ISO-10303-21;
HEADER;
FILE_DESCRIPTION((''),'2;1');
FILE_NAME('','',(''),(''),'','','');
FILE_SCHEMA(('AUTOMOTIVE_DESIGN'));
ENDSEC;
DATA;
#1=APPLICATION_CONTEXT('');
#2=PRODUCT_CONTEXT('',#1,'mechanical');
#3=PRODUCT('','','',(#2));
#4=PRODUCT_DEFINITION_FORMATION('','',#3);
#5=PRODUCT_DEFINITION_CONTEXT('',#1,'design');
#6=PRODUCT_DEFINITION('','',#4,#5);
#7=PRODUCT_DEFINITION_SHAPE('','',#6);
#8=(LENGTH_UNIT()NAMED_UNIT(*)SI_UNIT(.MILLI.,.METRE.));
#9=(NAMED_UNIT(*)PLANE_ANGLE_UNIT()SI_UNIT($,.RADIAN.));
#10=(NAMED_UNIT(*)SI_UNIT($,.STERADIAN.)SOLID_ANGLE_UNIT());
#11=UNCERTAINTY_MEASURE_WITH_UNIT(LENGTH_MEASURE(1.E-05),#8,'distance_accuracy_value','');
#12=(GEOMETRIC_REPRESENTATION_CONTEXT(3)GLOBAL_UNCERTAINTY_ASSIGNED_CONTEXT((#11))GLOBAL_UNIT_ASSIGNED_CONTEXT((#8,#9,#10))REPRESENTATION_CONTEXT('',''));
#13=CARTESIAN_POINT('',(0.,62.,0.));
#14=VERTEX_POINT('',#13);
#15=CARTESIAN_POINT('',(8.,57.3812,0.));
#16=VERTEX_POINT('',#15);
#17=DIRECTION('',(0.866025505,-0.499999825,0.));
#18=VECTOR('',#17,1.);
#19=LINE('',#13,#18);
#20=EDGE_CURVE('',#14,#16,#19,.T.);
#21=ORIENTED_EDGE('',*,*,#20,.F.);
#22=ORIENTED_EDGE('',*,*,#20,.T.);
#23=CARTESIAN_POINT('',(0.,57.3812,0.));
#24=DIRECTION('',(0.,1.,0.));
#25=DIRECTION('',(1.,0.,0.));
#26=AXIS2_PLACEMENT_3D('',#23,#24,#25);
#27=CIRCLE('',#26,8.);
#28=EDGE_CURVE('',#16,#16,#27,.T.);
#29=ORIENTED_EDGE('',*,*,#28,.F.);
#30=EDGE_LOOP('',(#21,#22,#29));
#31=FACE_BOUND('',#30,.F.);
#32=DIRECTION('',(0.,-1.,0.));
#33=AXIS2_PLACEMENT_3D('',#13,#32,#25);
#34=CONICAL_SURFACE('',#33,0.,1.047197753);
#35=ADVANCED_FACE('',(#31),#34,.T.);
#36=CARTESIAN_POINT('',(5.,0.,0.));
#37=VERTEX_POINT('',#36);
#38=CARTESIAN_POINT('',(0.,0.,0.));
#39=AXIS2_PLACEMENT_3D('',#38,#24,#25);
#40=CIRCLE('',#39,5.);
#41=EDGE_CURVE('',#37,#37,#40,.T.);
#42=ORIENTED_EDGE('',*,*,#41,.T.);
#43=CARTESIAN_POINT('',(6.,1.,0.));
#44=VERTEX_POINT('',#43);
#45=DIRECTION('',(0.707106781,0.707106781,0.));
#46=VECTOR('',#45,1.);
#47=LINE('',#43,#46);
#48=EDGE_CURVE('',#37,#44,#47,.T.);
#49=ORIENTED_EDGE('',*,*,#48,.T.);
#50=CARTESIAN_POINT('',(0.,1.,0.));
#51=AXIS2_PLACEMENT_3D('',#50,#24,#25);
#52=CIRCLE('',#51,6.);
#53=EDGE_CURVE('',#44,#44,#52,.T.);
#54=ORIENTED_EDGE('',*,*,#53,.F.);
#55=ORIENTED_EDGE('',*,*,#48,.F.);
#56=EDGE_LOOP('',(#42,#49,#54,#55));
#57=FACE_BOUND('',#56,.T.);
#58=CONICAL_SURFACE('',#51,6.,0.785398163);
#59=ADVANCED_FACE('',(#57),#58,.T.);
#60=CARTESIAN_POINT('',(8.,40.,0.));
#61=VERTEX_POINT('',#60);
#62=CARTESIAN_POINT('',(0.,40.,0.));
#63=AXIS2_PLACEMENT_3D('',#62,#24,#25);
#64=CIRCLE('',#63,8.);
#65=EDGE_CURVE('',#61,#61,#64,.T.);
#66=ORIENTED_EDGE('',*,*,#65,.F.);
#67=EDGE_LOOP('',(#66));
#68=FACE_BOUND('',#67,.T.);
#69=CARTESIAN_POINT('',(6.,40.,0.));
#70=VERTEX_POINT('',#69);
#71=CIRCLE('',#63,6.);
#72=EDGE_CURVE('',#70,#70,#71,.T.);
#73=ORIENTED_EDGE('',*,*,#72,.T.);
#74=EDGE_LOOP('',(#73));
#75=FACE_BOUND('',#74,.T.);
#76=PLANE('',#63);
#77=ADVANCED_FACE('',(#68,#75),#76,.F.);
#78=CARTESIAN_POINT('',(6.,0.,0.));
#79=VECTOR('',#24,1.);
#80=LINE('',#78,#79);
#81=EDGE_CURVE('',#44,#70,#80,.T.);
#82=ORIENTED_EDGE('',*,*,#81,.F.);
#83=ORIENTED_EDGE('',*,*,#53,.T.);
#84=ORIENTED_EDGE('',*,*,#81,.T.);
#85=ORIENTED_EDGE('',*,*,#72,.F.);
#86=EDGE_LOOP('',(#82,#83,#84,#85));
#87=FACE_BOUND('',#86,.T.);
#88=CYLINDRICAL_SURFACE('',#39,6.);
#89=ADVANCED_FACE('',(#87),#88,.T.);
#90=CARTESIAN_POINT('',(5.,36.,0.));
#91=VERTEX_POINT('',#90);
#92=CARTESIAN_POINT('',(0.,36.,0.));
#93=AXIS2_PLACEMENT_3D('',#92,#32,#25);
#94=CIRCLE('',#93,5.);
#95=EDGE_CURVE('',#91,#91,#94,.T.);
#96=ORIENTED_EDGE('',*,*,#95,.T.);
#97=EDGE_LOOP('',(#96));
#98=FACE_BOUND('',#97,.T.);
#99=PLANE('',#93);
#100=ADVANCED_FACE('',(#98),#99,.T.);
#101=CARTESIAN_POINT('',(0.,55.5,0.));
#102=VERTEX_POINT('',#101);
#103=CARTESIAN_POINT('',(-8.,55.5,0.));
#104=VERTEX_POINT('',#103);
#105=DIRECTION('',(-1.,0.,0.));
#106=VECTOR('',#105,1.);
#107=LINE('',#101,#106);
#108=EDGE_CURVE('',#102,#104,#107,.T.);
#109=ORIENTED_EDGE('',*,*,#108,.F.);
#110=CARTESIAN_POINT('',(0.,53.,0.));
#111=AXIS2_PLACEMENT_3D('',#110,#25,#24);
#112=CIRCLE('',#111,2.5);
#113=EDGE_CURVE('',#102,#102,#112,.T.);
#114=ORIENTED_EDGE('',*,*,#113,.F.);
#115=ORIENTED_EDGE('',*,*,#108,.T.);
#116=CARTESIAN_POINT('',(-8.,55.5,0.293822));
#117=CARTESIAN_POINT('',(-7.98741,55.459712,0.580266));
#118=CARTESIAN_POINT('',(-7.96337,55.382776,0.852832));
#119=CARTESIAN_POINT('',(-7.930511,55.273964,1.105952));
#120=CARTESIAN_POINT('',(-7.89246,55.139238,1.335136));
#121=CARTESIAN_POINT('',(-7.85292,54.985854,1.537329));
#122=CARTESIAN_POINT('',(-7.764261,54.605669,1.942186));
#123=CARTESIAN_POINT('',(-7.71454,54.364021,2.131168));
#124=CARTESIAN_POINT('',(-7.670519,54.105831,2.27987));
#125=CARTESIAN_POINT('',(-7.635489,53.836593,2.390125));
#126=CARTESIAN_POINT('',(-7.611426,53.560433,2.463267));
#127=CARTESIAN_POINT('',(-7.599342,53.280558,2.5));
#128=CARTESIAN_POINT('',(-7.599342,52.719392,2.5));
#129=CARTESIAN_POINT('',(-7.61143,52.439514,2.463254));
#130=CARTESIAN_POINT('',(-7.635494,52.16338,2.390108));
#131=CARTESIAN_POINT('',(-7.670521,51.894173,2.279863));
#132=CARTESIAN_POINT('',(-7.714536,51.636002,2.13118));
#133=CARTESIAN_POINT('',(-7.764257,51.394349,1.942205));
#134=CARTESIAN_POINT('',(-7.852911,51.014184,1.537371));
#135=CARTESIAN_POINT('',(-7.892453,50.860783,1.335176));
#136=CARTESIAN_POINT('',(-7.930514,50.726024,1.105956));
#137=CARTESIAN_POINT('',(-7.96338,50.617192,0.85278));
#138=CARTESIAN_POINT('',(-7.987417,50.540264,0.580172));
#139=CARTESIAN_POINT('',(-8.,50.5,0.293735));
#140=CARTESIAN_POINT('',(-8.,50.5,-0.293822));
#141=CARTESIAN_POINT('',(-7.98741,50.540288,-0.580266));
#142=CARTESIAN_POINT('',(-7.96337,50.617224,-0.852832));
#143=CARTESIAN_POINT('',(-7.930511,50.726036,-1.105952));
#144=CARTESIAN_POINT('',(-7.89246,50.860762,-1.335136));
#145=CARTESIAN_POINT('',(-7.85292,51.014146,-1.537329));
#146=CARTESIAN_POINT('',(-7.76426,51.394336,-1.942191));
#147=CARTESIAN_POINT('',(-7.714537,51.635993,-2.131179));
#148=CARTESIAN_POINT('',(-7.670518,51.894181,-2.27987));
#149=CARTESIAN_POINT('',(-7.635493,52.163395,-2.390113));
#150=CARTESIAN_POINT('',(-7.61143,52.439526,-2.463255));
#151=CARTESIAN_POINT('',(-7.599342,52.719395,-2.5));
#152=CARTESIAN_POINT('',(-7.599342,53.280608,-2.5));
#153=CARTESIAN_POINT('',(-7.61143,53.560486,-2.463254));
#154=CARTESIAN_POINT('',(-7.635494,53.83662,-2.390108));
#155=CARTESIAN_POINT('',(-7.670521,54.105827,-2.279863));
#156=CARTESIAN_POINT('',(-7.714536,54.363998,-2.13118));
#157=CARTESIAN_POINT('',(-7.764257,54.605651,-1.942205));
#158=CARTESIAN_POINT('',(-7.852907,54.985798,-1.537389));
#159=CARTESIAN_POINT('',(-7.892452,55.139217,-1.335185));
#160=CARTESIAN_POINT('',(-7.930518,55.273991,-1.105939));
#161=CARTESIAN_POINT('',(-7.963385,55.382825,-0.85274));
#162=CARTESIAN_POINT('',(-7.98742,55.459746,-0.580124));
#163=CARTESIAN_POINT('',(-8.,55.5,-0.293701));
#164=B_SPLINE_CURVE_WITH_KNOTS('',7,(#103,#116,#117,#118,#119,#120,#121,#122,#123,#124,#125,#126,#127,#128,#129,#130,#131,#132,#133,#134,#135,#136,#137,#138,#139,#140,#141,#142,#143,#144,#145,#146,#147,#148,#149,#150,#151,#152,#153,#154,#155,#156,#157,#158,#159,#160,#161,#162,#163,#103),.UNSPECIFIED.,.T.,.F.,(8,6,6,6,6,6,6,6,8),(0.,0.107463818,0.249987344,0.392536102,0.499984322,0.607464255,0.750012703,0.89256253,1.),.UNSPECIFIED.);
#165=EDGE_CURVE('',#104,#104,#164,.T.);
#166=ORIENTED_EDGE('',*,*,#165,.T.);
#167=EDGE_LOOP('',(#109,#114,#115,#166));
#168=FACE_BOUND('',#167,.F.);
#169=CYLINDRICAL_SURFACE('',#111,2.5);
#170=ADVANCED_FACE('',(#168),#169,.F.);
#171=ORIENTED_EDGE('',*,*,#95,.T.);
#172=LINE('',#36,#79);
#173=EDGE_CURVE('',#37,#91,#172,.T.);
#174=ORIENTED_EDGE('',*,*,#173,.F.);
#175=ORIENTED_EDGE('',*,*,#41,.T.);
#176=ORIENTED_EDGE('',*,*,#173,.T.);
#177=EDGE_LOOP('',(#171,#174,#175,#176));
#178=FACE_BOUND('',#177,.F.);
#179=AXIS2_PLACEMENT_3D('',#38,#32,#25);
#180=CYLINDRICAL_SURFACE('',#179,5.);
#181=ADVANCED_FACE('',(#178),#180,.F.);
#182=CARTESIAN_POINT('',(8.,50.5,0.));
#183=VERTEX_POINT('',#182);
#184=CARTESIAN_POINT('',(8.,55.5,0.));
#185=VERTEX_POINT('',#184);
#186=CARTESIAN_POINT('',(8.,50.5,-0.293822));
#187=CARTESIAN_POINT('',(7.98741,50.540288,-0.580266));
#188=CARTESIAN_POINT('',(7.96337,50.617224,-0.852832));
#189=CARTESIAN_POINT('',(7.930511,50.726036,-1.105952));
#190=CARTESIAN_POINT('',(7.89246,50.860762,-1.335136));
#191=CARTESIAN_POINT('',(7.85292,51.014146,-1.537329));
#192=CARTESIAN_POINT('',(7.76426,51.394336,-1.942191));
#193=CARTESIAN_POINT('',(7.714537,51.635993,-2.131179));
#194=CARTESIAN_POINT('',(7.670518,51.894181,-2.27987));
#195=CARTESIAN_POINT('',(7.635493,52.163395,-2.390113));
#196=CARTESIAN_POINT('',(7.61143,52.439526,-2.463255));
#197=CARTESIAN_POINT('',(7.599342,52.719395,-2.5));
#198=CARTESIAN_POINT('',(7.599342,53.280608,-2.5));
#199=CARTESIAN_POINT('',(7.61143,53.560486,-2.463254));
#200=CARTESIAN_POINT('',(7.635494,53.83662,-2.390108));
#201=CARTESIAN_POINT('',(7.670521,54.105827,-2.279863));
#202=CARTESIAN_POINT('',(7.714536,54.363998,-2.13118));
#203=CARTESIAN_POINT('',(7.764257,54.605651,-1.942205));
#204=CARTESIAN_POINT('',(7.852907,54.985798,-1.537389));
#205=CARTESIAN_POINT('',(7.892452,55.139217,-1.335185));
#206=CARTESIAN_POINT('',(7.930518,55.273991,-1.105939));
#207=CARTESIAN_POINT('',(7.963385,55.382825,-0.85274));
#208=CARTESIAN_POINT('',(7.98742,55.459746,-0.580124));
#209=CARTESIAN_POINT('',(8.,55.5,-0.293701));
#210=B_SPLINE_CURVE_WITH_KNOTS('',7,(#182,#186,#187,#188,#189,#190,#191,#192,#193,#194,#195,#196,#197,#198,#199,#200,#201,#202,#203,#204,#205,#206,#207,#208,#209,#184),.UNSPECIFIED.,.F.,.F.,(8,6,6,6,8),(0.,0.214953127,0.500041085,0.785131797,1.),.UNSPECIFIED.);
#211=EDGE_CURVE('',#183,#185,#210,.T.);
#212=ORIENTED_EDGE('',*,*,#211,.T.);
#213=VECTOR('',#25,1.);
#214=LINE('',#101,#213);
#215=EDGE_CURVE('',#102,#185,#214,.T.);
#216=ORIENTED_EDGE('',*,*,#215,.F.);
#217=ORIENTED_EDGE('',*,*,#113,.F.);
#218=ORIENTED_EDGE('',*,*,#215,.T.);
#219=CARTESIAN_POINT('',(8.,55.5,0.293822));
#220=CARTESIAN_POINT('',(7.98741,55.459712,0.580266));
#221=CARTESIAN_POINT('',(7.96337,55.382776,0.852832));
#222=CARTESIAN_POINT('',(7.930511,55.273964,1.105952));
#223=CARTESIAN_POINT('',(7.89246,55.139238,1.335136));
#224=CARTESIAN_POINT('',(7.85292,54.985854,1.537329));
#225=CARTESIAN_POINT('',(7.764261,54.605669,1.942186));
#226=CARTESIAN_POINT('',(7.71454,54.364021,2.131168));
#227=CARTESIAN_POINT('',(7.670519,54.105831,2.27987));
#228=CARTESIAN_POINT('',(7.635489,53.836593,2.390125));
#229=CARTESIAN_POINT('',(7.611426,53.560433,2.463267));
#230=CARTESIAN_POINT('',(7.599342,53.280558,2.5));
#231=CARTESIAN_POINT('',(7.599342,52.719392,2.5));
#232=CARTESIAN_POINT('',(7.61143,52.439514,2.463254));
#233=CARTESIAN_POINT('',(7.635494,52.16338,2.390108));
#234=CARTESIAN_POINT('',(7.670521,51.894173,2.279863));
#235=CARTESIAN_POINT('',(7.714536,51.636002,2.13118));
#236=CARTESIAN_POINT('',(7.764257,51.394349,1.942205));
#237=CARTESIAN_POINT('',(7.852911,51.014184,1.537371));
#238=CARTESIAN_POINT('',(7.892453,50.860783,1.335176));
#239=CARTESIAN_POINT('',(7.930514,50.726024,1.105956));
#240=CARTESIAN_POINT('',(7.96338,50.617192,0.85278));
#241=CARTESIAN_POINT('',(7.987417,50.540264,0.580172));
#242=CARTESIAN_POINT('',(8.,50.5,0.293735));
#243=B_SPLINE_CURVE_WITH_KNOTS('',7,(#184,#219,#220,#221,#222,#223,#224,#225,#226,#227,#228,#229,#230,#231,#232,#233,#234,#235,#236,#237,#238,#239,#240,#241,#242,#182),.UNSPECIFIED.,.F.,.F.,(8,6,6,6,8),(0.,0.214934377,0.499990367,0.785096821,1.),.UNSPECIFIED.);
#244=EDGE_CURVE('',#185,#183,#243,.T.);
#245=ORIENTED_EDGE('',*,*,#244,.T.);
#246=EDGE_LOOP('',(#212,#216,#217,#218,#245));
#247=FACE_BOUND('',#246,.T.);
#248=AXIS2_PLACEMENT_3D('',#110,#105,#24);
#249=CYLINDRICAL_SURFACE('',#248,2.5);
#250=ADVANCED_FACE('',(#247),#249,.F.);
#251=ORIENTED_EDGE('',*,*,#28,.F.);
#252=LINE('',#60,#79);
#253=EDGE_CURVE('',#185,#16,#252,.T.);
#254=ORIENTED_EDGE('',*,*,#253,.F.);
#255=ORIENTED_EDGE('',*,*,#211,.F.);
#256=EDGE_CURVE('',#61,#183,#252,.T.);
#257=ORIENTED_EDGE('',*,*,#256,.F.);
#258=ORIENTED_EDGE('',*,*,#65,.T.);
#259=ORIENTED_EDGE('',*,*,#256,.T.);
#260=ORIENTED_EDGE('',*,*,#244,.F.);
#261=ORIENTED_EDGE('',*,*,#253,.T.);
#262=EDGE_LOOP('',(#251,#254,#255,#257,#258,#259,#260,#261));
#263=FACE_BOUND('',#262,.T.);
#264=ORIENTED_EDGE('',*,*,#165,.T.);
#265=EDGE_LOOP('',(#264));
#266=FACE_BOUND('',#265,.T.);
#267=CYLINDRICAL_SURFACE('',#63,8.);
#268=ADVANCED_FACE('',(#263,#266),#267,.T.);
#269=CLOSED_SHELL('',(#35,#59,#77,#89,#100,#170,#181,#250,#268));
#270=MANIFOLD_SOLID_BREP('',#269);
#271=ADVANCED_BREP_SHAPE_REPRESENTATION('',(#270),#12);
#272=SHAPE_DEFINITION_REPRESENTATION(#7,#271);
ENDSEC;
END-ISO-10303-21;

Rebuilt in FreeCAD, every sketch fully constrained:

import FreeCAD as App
import Part
import Sketcher
Q = App.Units.Quantity


def edges_at(feature, points):
    """Names of the edges that pass closest to the given points."""
    edges = feature.Shape.Edges
    near = lambda p: min(range(len(edges)), key=lambda i: edges[i].distToShape(Part.Vertex(*p))[0])
    return sorted({f"Edge{near(p) + 1}" for p in points})


def add_polygon(sketch, points):
    """Adds a closed chain of lines whose ends are joined by coincident constraints."""
    first, n = sketch.GeometryCount, len(points)
    for a, b in zip(points, points[1:] + points[:1]):
        sketch.addGeometry(Part.LineSegment(App.Vector(*a, 0), App.Vector(*b, 0)), False)
    for i in range(n):
        sketch.addConstraint(Sketcher.Constraint("Coincident", first + i, 2, first + (i + 1) % n, 1))

doc = App.newDocument("Part")
body = doc.addObject("PartDesign::Body", "Body")

# Sketch on XY plane
sketch1 = doc.addObject("Sketcher::SketchObject", "Sketch")
body.addObject(sketch1)
sketch1.AttachmentSupport = (doc.XY_Plane, [""])
sketch1.MapMode = "FlatFace"
add_polygon(sketch1, [(0, 62), (0, 0), (6, 0), (6, 40), (8, 40), (8, 57.4)])  # lines 0-5
sketch1.addConstraint([
    Sketcher.Constraint("Vertical", 0),
    Sketcher.Constraint("Horizontal", 1),
    Sketcher.Constraint("Vertical", 2),
    Sketcher.Constraint("Horizontal", 3),
    Sketcher.Constraint("Vertical", 4),
    Sketcher.Constraint("Coincident", 0, 2, -1, 1),
    Sketcher.Constraint("DistanceX", 1, 1, 1, 2, Q("6 mm")),
    Sketcher.Constraint("DistanceX", 3, 1, 3, 2, Q("2 mm")),
    Sketcher.Constraint("DistanceY", 0, 2, 0, 1, Q("62 mm")),
    Sketcher.Constraint("DistanceY", 2, 1, 2, 2, Q("40 mm")),
    Sketcher.Constraint("Angle", 5, Q("150 deg")),
])
revolution = doc.addObject("PartDesign::Revolution", "Revolution")
body.addObject(revolution)
revolution.Profile = sketch1
revolution.ReferenceAxis = (sketch1, ["V_Axis"])
revolution.Angle = 360
doc.recompute()

chamfer = doc.addObject("PartDesign::Chamfer", "Chamfer")
body.addObject(chamfer)
chamfer.Base = (revolution, edges_at(revolution, [(-6, 0, 0)]))
chamfer.ChamferType = "Two distances"
chamfer.Size = 1
chamfer.Size2 = 1

# Sketch on XZ plane
sketch2 = doc.addObject("Sketcher::SketchObject", "Sketch001")
body.addObject(sketch2)
sketch2.AttachmentSupport = (doc.XZ_Plane, [""])
sketch2.MapMode = "FlatFace"
sketch2.addGeometry(Part.Circle(App.Vector(0, 0, 0), App.Vector(0, 0, 1), 5), False)
sketch2.addConstraint([
    Sketcher.Constraint("Coincident", 0, 3, -1, 1),
    Sketcher.Constraint("Diameter", 0, Q("10 mm")),
])
pocket1 = doc.addObject("PartDesign::Pocket", "Pocket")
body.addObject(pocket1)
pocket1.Profile = sketch2
pocket1.Length = 36

# Sketch on YZ plane
sketch3 = doc.addObject("Sketcher::SketchObject", "Sketch002")
body.addObject(sketch3)
sketch3.AttachmentSupport = (doc.YZ_Plane, [""])
sketch3.MapMode = "FlatFace"
sketch3.addGeometry(Part.Circle(App.Vector(53, 0, 0), App.Vector(0, 0, 1), 2.5), False)
sketch3.addConstraint([
    Sketcher.Constraint("PointOnObject", 0, 3, -1),
    Sketcher.Constraint("Diameter", 0, Q("5 mm")),
    Sketcher.Constraint("DistanceX", -1, 1, 0, 3, Q("53 mm")),
])
pocket2 = doc.addObject("PartDesign::Pocket", "Pocket001")
body.addObject(pocket2)
pocket2.Profile = sketch3
pocket2.Type = "ThroughAll"
pocket2.Midplane = True

doc.recompute()
